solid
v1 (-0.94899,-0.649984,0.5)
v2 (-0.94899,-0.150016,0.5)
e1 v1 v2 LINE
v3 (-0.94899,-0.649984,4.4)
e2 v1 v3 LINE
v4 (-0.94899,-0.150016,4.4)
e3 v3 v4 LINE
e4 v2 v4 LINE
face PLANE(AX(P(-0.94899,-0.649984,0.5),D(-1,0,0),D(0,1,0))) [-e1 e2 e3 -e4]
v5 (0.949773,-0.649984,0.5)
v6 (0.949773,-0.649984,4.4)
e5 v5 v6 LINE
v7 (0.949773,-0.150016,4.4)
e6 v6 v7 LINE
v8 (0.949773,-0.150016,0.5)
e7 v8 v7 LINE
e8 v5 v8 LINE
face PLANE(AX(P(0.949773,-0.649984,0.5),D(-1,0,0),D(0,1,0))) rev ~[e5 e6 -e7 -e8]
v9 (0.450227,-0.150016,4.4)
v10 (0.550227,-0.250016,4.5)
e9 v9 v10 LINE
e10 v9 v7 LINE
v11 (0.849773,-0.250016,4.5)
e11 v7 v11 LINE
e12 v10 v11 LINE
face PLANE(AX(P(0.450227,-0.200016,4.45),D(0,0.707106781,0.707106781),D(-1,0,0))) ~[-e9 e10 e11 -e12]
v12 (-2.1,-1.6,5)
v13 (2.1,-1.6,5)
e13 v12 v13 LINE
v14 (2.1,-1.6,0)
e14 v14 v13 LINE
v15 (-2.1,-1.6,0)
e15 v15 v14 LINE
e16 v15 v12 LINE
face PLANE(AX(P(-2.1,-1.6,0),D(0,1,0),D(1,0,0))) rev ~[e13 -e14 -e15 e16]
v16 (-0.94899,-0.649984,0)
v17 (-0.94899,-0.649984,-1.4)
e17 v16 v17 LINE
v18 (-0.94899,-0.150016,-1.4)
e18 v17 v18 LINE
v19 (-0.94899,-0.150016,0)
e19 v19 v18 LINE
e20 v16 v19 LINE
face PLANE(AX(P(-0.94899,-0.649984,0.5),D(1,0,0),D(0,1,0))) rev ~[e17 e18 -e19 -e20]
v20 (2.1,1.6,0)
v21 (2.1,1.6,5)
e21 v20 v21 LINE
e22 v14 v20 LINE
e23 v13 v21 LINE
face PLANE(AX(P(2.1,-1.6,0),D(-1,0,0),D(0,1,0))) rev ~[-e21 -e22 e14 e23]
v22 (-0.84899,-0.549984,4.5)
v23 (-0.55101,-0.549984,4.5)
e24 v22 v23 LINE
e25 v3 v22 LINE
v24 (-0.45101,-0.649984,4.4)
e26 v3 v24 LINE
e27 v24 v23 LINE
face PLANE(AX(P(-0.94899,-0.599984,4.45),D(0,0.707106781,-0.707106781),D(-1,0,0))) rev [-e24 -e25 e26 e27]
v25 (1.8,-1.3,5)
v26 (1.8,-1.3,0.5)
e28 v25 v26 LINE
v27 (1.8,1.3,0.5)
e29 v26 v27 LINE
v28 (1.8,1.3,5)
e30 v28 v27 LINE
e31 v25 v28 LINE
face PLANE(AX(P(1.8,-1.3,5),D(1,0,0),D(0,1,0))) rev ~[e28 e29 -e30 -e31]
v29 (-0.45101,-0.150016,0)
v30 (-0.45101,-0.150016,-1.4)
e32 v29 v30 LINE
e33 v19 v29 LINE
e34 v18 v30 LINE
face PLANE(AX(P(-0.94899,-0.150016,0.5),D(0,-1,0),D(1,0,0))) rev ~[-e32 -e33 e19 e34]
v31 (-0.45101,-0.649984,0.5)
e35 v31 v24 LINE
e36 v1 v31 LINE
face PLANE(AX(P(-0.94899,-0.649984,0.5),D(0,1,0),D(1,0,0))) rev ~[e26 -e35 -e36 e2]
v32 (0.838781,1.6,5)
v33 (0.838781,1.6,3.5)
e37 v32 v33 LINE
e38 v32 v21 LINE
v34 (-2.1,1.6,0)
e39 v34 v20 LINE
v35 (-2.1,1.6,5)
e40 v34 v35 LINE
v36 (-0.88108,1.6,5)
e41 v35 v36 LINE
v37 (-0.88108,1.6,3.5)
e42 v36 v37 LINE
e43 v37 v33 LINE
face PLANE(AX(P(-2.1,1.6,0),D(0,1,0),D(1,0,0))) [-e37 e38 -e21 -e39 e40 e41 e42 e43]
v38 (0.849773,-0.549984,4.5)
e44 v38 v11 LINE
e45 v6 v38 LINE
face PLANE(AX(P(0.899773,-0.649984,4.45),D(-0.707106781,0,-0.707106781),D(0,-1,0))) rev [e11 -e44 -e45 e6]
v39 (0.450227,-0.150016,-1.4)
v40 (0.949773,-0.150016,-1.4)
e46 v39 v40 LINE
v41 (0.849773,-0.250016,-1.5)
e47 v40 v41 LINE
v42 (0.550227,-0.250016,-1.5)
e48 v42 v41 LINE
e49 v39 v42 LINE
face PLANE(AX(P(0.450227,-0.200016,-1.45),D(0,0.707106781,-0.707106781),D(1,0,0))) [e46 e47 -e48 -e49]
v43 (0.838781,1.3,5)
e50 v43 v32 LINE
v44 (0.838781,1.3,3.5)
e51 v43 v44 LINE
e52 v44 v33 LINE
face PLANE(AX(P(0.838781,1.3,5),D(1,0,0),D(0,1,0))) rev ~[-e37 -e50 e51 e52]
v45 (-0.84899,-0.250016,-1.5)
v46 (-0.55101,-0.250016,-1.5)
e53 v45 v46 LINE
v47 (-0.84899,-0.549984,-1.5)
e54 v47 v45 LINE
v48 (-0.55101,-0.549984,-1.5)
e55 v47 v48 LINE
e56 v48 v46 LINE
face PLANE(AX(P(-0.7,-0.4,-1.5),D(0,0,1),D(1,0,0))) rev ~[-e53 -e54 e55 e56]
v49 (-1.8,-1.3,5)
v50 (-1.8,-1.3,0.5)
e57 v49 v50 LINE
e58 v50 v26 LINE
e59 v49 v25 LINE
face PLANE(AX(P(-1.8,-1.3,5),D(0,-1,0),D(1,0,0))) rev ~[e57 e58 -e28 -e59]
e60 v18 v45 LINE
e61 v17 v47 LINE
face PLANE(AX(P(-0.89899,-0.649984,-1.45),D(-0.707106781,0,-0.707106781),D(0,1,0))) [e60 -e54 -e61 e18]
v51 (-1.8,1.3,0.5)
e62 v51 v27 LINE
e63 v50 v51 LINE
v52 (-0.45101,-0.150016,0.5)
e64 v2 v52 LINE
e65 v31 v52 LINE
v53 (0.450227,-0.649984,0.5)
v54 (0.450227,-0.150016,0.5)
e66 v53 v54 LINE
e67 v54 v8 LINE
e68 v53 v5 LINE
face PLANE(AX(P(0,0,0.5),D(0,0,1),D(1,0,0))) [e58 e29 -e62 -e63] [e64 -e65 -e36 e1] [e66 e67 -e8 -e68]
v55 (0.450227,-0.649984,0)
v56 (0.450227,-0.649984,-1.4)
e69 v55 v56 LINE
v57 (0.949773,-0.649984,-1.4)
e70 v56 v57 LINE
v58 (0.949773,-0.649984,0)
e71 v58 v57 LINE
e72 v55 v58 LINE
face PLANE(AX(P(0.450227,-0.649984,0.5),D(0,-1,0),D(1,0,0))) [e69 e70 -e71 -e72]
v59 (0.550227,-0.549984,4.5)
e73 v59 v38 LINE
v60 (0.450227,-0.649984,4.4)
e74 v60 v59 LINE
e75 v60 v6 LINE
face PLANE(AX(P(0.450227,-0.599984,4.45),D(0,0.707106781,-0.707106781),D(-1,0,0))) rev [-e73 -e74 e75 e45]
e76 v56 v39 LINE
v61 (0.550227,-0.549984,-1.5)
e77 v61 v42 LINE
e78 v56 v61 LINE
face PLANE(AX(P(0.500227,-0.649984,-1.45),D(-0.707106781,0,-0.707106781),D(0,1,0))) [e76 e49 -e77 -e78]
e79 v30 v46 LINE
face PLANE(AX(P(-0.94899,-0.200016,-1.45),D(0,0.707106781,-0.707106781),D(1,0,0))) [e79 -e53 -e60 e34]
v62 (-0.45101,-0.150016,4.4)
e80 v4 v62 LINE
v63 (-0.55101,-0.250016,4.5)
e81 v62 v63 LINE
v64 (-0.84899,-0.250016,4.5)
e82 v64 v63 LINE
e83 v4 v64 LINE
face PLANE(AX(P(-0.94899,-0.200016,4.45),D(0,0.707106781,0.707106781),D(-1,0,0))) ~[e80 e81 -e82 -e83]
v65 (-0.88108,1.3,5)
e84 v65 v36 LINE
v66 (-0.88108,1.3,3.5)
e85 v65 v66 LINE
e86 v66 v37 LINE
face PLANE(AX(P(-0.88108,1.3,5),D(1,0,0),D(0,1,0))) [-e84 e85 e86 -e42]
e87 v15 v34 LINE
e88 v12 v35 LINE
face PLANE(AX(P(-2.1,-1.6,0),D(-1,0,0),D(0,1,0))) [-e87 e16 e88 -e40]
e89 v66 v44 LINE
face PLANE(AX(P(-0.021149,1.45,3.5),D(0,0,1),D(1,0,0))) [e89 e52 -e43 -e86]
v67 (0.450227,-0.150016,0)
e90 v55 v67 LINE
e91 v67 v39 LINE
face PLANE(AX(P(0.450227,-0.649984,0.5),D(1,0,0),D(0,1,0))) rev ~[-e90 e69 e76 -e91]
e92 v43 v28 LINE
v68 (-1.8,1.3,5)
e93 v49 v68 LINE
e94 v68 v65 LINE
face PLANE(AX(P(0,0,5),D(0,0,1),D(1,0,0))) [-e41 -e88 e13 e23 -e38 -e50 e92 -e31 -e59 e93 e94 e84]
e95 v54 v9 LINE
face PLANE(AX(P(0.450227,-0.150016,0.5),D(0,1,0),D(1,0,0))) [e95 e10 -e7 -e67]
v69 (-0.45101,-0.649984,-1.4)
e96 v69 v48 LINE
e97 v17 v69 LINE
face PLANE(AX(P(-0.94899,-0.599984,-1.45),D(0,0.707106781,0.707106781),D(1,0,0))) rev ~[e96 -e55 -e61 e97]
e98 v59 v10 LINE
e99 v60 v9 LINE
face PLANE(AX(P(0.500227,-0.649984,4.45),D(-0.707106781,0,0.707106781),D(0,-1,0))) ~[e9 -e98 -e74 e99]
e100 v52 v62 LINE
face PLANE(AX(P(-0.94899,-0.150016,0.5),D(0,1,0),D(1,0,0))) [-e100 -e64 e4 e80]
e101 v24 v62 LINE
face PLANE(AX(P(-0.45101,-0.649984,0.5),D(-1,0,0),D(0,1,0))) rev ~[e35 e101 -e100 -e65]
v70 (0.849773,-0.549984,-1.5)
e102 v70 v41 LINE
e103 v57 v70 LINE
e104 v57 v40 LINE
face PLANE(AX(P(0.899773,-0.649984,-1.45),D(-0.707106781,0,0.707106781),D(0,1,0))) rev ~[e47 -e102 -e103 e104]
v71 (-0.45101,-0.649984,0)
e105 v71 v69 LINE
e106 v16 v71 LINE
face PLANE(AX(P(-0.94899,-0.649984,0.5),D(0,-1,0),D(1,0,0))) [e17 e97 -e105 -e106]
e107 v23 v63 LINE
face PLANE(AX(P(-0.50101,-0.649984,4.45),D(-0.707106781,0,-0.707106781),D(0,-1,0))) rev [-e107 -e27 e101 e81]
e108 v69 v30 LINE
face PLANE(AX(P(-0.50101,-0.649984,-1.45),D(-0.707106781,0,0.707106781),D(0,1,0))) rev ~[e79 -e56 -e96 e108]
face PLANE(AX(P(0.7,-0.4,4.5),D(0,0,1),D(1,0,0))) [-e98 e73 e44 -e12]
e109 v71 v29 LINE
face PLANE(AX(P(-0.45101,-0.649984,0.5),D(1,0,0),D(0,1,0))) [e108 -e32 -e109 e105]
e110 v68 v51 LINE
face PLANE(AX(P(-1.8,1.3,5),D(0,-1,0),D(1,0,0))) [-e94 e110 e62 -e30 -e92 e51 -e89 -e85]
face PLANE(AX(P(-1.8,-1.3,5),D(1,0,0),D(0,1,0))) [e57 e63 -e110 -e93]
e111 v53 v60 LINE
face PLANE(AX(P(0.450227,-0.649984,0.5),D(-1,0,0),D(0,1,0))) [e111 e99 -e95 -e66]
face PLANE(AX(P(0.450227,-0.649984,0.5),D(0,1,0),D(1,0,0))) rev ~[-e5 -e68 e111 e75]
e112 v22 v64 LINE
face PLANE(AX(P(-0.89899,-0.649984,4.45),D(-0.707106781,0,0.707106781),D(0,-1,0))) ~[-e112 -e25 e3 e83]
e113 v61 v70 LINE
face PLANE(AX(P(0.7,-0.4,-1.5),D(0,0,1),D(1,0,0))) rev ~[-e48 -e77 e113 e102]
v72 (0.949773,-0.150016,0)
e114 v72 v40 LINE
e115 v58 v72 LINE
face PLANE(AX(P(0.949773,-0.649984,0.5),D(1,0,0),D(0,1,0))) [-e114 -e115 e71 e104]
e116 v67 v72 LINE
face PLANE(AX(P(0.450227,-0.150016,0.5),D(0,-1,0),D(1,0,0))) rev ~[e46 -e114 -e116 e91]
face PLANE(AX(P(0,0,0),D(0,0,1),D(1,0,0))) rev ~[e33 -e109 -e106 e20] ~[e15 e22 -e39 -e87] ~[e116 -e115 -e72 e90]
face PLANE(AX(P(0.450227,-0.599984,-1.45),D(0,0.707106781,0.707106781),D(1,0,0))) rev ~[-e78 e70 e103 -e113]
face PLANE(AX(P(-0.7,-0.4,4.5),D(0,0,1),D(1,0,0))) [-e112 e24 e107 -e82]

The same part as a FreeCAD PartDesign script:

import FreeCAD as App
import Part
import Sketcher
from FreeCAD import Vector
Q = App.Units.Quantity


def edges_at(feature, points):
    """Names of the edges that pass closest to the given points."""
    edges = feature.Shape.Edges
    near = lambda p: min(range(len(edges)), key=lambda i: edges[i].distToShape(Part.Vertex(*p))[0])
    return sorted({f"Edge{near(p) + 1}" for p in points})


def add_polygon(sketch, points):
    """Adds a closed chain of lines whose ends are joined by coincident constraints."""
    first, n = sketch.GeometryCount, len(points)
    for a, b in zip(points, points[1:] + points[:1]):
        sketch.addGeometry(Part.LineSegment(App.Vector(*a, 0), App.Vector(*b, 0)), False)
    for i in range(n):
        sketch.addConstraint(Sketcher.Constraint("Coincident", first + i, 2, first + (i + 1) % n, 1))

doc = App.newDocument("Part")
body = doc.addObject("PartDesign::Body", "Body")

# Sketch on XY plane
sketch1 = body.newObject("Sketcher::SketchObject", "Sketch")
sketch1.AttachmentSupport = (doc.getObject("XY_Plane"), [""])
sketch1.MapMode = "FlatFace"
add_polygon(sketch1, [(-2.1, 1.6), (-2.1, -1.6), (2.1, -1.6), (2.1, 1.6)])  # lines 0-3
sketch1.addConstraint([
    Sketcher.Constraint("Vertical", 0),
    Sketcher.Constraint("Horizontal", 1),
    Sketcher.Constraint("Vertical", 2),
    Sketcher.Constraint("Horizontal", 3),
    Sketcher.Constraint("Symmetric", 0, 2, 2, 2, -1, 1),
    Sketcher.Constraint("DistanceX", 1, 1, 1, 2, Q("4.2 mm")),
    Sketcher.Constraint("DistanceY", 0, 2, 0, 1, Q("3.2 mm")),
])
pad1 = body.newObject("PartDesign::Pad", "Pad")
pad1.Profile = sketch1
pad1.Length = 5

# Sketch on XY plane
sketch2 = body.newObject("Sketcher::SketchObject", "Sketch001")
sketch2.AttachmentSupport = (doc.getObject("XY_Plane"), [""])
sketch2.MapMode = "FlatFace"
sketch2.AttachmentOffset = App.Placement(Vector(0, 0, 5), App.Rotation())
add_polygon(sketch2, [(-1.8, 1.3), (-1.8, -1.3), (1.8, -1.3), (1.8, 1.3)])  # lines 0-3
sketch2.addConstraint([
    Sketcher.Constraint("Vertical", 0),
    Sketcher.Constraint("Horizontal", 1),
    Sketcher.Constraint("Vertical", 2),
    Sketcher.Constraint("Horizontal", 3),
    Sketcher.Constraint("Symmetric", 0, 2, 2, 2, -1, 1),
    Sketcher.Constraint("DistanceX", 1, 1, 1, 2, Q("3.6 mm")),
    Sketcher.Constraint("DistanceY", 0, 2, 0, 1, Q("2.6 mm")),
])
pocket1 = body.newObject("PartDesign::Pocket", "Pocket")
pocket1.Profile = sketch2
pocket1.Length = 4.5

# Sketch on XY plane
sketch3 = body.newObject("Sketcher::SketchObject", "Sketch002")
sketch3.AttachmentSupport = (doc.getObject("XY_Plane"), [""])
sketch3.MapMode = "FlatFace"
sketch3.AttachmentOffset = App.Placement(Vector(0, 0, 5), App.Rotation())
add_polygon(sketch3, [(-0.88, 1.6), (-0.88, 1.3), (0.84, 1.3), (0.84, 1.6)])  # lines 0-3
sketch3.addConstraint([
    Sketcher.Constraint("Vertical", 0),
    Sketcher.Constraint("Horizontal", 1),
    Sketcher.Constraint("Vertical", 2),
    Sketcher.Constraint("Horizontal", 3),
    Sketcher.Constraint("DistanceY", 0, 2, 0, 1, Q("0.3 mm")),
    Sketcher.Constraint("DistanceY", -1, 1, 0, 2, Q("1.3 mm")),
    Sketcher.Constraint("DistanceX", 1, 1, 1, 2, Q("1.719861 mm")),
    Sketcher.Constraint("DistanceX", 0, 2, -1, 1, Q("0.88108 mm")),
])
pocket2 = body.newObject("PartDesign::Pocket", "Pocket001")
pocket2.Profile = sketch3
pocket2.Length = 1.5

# Sketch on XY plane
sketch4 = body.newObject("Sketcher::SketchObject", "Sketch003")
sketch4.AttachmentSupport = (doc.getObject("XY_Plane"), [""])
sketch4.MapMode = "FlatFace"
sketch4.AttachmentOffset = App.Placement(Vector(0, 0, 0.5), App.Rotation())
add_polygon(sketch4, [(-0.95, -0.15), (-0.95, -0.65), (-0.45, -0.65), (-0.45, -0.15)])  # lines 0-3
add_polygon(sketch4, [(0.45, -0.15), (0.45, -0.65), (0.95, -0.65), (0.95, -0.15)])  # lines 4-7
sketch4.addConstraint([
    Sketcher.Constraint("Vertical", 0),
    Sketcher.Constraint("Horizontal", 1),
    Sketcher.Constraint("Vertical", 2),
    Sketcher.Constraint("Horizontal", 3),
    Sketcher.Constraint("Vertical", 4),
    Sketcher.Constraint("Horizontal", 5),
    Sketcher.Constraint("Vertical", 6),
    Sketcher.Constraint("Horizontal", 7),
    Sketcher.Constraint("Horizontal", 1, 2, 4, 2),
    Sketcher.Constraint("Horizontal", 3, 2, 6, 2),
    Sketcher.Constraint("DistanceX", 1, 1, 1, 2, Q("0.497981 mm")),
    Sketcher.Constraint("DistanceY", 0, 2, 0, 1, Q("0.499969 mm")),
    Sketcher.Constraint("DistanceX", 5, 1, 5, 2, Q("0.499546 mm")),
    Sketcher.Constraint("DistanceX", 0, 2, -1, 1, Q("0.94899 mm")),
    Sketcher.Constraint("DistanceY", 0, 2, -1, 1, Q("0.649984 mm")),
    Sketcher.Constraint("DistanceX", -1, 1, 4, 2, Q("0.450227 mm")),
])
pad2 = body.newObject("PartDesign::Pad", "Pad001")
pad2.Profile = sketch4
pad2.Type = "TwoLengths"
pad2.Length = 4
pad2.Length2 = 2
doc.recompute()

chamfer = body.newObject("PartDesign::Chamfer", "Chamfer")
chamfer.Base = (pad2, edges_at(pad2, [
    (-0.451, -0.4, 4.5),
    (-0.7, -0.15, 4.5),
    (-0.949, -0.4, 4.5),
    (-0.7, -0.65, 4.5),
    (0.95, -0.4, 4.5),
    (0.7, -0.15, 4.5),
    (0.45, -0.4, 4.5),
    (0.7, -0.65, 4.5),
]))
chamfer.Size = 0.1
doc.recompute()

chamfer2 = body.newObject("PartDesign::Chamfer", "Chamfer001")
chamfer2.Base = (chamfer, edges_at(chamfer, [
    (-0.451, -0.4, -1.5),
    (-0.7, -0.65, -1.5),
    (-0.949, -0.4, -1.5),
    (-0.7, -0.15, -1.5),
    (0.95, -0.4, -1.5),
    (0.7, -0.65, -1.5),
    (0.45, -0.4, -1.5),
    (0.7, -0.15, -1.5),
]))
chamfer2.Size = 0.1

doc.recompute()
